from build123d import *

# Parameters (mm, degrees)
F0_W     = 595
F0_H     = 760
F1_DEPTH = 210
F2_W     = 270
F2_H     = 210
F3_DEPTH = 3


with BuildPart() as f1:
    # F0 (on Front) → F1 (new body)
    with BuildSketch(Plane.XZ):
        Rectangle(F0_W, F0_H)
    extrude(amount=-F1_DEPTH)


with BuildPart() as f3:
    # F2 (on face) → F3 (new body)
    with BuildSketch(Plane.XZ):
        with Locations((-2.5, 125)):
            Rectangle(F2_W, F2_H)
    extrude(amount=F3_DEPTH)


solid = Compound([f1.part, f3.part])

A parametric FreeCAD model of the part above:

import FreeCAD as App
import Part
import Sketcher

V = App.Vector
Q = App.Units.Quantity

doc = App.newDocument("Part")
body = doc.addObject("PartDesign::Body", "Body")

sketch1 = body.newObject("Sketcher::SketchObject", "Sketch")
sketch1.AttachmentSupport = (doc.getObject("XZ_Plane"), [""])
sketch1.MapMode = "FlatFace"
sketch1.addGeometry(Part.LineSegment(V(-297.5, 380, 0), V(-297.5, -380, 0)), False)
sketch1.addGeometry(Part.LineSegment(V(-297.5, -380, 0), V(297.5, -380, 0)), False)
sketch1.addGeometry(Part.LineSegment(V(297.5, -380, 0), V(297.5, 380, 0)), False)
sketch1.addGeometry(Part.LineSegment(V(297.5, 380, 0), V(-297.5, 380, 0)), False)
sketch1.addConstraint(Sketcher.Constraint("Coincident", 0, 2, 1, 1))
sketch1.addConstraint(Sketcher.Constraint("Coincident", 1, 2, 2, 1))
sketch1.addConstraint(Sketcher.Constraint("Coincident", 2, 2, 3, 1))
sketch1.addConstraint(Sketcher.Constraint("Coincident", 3, 2, 0, 1))
sketch1.addConstraint(Sketcher.Constraint("Vertical", 0))
sketch1.addConstraint(Sketcher.Constraint("Horizontal", 1))
sketch1.addConstraint(Sketcher.Constraint("Vertical", 2))
sketch1.addConstraint(Sketcher.Constraint("Horizontal", 3))
sketch1.addConstraint(Sketcher.Constraint("Symmetric", 0, 2, 2, 2, -1, 1))
sketch1.addConstraint(Sketcher.Constraint("DistanceX", 1, 1, 1, 2, Q("595 mm")))
sketch1.addConstraint(Sketcher.Constraint("DistanceY", 0, 2, 0, 1, Q("760 mm")))
pad1 = body.newObject("PartDesign::Pad", "Pad")
pad1.Profile = sketch1
pad1.Length = 210
pad1.Reversed = True
body2 = doc.addObject("PartDesign::Body", "Body001")

sketch2 = body2.newObject("Sketcher::SketchObject", "Sketch001")
sketch2.AttachmentSupport = (doc.getObject("XZ_Plane001"), [""])
sketch2.MapMode = "FlatFace"
sketch2.addGeometry(Part.LineSegment(V(-137.5, 230, 0), V(-137.5, 20, 0)), False)
sketch2.addGeometry(Part.LineSegment(V(-137.5, 20, 0), V(132.5, 20, 0)), False)
sketch2.addGeometry(Part.LineSegment(V(132.5, 20, 0), V(132.5, 230, 0)), False)
sketch2.addGeometry(Part.LineSegment(V(132.5, 230, 0), V(-137.5, 230, 0)), False)
sketch2.addConstraint(Sketcher.Constraint("Coincident", 0, 2, 1, 1))
sketch2.addConstraint(Sketcher.Constraint("Coincident", 1, 2, 2, 1))
sketch2.addConstraint(Sketcher.Constraint("Coincident", 2, 2, 3, 1))
sketch2.addConstraint(Sketcher.Constraint("Coincident", 3, 2, 0, 1))
sketch2.addConstraint(Sketcher.Constraint("Vertical", 0))
sketch2.addConstraint(Sketcher.Constraint("Horizontal", 1))
sketch2.addConstraint(Sketcher.Constraint("Vertical", 2))
sketch2.addConstraint(Sketcher.Constraint("Horizontal", 3))
sketch2.addConstraint(Sketcher.Constraint("DistanceX", 1, 1, 1, 2, Q("270 mm")))
sketch2.addConstraint(Sketcher.Constraint("DistanceY", 0, 2, 0, 1, Q("210 mm")))
sketch2.addConstraint(Sketcher.Constraint("DistanceY", -1, 1, 0, 2, Q("20 mm")))
sketch2.addConstraint(Sketcher.Constraint("DistanceX", 0, 2, -1, 1, Q("137.5 mm")))
pad2 = body2.newObject("PartDesign::Pad", "Pad001")
pad2.Profile = sketch2
pad2.Length = 3

doc.recompute()
